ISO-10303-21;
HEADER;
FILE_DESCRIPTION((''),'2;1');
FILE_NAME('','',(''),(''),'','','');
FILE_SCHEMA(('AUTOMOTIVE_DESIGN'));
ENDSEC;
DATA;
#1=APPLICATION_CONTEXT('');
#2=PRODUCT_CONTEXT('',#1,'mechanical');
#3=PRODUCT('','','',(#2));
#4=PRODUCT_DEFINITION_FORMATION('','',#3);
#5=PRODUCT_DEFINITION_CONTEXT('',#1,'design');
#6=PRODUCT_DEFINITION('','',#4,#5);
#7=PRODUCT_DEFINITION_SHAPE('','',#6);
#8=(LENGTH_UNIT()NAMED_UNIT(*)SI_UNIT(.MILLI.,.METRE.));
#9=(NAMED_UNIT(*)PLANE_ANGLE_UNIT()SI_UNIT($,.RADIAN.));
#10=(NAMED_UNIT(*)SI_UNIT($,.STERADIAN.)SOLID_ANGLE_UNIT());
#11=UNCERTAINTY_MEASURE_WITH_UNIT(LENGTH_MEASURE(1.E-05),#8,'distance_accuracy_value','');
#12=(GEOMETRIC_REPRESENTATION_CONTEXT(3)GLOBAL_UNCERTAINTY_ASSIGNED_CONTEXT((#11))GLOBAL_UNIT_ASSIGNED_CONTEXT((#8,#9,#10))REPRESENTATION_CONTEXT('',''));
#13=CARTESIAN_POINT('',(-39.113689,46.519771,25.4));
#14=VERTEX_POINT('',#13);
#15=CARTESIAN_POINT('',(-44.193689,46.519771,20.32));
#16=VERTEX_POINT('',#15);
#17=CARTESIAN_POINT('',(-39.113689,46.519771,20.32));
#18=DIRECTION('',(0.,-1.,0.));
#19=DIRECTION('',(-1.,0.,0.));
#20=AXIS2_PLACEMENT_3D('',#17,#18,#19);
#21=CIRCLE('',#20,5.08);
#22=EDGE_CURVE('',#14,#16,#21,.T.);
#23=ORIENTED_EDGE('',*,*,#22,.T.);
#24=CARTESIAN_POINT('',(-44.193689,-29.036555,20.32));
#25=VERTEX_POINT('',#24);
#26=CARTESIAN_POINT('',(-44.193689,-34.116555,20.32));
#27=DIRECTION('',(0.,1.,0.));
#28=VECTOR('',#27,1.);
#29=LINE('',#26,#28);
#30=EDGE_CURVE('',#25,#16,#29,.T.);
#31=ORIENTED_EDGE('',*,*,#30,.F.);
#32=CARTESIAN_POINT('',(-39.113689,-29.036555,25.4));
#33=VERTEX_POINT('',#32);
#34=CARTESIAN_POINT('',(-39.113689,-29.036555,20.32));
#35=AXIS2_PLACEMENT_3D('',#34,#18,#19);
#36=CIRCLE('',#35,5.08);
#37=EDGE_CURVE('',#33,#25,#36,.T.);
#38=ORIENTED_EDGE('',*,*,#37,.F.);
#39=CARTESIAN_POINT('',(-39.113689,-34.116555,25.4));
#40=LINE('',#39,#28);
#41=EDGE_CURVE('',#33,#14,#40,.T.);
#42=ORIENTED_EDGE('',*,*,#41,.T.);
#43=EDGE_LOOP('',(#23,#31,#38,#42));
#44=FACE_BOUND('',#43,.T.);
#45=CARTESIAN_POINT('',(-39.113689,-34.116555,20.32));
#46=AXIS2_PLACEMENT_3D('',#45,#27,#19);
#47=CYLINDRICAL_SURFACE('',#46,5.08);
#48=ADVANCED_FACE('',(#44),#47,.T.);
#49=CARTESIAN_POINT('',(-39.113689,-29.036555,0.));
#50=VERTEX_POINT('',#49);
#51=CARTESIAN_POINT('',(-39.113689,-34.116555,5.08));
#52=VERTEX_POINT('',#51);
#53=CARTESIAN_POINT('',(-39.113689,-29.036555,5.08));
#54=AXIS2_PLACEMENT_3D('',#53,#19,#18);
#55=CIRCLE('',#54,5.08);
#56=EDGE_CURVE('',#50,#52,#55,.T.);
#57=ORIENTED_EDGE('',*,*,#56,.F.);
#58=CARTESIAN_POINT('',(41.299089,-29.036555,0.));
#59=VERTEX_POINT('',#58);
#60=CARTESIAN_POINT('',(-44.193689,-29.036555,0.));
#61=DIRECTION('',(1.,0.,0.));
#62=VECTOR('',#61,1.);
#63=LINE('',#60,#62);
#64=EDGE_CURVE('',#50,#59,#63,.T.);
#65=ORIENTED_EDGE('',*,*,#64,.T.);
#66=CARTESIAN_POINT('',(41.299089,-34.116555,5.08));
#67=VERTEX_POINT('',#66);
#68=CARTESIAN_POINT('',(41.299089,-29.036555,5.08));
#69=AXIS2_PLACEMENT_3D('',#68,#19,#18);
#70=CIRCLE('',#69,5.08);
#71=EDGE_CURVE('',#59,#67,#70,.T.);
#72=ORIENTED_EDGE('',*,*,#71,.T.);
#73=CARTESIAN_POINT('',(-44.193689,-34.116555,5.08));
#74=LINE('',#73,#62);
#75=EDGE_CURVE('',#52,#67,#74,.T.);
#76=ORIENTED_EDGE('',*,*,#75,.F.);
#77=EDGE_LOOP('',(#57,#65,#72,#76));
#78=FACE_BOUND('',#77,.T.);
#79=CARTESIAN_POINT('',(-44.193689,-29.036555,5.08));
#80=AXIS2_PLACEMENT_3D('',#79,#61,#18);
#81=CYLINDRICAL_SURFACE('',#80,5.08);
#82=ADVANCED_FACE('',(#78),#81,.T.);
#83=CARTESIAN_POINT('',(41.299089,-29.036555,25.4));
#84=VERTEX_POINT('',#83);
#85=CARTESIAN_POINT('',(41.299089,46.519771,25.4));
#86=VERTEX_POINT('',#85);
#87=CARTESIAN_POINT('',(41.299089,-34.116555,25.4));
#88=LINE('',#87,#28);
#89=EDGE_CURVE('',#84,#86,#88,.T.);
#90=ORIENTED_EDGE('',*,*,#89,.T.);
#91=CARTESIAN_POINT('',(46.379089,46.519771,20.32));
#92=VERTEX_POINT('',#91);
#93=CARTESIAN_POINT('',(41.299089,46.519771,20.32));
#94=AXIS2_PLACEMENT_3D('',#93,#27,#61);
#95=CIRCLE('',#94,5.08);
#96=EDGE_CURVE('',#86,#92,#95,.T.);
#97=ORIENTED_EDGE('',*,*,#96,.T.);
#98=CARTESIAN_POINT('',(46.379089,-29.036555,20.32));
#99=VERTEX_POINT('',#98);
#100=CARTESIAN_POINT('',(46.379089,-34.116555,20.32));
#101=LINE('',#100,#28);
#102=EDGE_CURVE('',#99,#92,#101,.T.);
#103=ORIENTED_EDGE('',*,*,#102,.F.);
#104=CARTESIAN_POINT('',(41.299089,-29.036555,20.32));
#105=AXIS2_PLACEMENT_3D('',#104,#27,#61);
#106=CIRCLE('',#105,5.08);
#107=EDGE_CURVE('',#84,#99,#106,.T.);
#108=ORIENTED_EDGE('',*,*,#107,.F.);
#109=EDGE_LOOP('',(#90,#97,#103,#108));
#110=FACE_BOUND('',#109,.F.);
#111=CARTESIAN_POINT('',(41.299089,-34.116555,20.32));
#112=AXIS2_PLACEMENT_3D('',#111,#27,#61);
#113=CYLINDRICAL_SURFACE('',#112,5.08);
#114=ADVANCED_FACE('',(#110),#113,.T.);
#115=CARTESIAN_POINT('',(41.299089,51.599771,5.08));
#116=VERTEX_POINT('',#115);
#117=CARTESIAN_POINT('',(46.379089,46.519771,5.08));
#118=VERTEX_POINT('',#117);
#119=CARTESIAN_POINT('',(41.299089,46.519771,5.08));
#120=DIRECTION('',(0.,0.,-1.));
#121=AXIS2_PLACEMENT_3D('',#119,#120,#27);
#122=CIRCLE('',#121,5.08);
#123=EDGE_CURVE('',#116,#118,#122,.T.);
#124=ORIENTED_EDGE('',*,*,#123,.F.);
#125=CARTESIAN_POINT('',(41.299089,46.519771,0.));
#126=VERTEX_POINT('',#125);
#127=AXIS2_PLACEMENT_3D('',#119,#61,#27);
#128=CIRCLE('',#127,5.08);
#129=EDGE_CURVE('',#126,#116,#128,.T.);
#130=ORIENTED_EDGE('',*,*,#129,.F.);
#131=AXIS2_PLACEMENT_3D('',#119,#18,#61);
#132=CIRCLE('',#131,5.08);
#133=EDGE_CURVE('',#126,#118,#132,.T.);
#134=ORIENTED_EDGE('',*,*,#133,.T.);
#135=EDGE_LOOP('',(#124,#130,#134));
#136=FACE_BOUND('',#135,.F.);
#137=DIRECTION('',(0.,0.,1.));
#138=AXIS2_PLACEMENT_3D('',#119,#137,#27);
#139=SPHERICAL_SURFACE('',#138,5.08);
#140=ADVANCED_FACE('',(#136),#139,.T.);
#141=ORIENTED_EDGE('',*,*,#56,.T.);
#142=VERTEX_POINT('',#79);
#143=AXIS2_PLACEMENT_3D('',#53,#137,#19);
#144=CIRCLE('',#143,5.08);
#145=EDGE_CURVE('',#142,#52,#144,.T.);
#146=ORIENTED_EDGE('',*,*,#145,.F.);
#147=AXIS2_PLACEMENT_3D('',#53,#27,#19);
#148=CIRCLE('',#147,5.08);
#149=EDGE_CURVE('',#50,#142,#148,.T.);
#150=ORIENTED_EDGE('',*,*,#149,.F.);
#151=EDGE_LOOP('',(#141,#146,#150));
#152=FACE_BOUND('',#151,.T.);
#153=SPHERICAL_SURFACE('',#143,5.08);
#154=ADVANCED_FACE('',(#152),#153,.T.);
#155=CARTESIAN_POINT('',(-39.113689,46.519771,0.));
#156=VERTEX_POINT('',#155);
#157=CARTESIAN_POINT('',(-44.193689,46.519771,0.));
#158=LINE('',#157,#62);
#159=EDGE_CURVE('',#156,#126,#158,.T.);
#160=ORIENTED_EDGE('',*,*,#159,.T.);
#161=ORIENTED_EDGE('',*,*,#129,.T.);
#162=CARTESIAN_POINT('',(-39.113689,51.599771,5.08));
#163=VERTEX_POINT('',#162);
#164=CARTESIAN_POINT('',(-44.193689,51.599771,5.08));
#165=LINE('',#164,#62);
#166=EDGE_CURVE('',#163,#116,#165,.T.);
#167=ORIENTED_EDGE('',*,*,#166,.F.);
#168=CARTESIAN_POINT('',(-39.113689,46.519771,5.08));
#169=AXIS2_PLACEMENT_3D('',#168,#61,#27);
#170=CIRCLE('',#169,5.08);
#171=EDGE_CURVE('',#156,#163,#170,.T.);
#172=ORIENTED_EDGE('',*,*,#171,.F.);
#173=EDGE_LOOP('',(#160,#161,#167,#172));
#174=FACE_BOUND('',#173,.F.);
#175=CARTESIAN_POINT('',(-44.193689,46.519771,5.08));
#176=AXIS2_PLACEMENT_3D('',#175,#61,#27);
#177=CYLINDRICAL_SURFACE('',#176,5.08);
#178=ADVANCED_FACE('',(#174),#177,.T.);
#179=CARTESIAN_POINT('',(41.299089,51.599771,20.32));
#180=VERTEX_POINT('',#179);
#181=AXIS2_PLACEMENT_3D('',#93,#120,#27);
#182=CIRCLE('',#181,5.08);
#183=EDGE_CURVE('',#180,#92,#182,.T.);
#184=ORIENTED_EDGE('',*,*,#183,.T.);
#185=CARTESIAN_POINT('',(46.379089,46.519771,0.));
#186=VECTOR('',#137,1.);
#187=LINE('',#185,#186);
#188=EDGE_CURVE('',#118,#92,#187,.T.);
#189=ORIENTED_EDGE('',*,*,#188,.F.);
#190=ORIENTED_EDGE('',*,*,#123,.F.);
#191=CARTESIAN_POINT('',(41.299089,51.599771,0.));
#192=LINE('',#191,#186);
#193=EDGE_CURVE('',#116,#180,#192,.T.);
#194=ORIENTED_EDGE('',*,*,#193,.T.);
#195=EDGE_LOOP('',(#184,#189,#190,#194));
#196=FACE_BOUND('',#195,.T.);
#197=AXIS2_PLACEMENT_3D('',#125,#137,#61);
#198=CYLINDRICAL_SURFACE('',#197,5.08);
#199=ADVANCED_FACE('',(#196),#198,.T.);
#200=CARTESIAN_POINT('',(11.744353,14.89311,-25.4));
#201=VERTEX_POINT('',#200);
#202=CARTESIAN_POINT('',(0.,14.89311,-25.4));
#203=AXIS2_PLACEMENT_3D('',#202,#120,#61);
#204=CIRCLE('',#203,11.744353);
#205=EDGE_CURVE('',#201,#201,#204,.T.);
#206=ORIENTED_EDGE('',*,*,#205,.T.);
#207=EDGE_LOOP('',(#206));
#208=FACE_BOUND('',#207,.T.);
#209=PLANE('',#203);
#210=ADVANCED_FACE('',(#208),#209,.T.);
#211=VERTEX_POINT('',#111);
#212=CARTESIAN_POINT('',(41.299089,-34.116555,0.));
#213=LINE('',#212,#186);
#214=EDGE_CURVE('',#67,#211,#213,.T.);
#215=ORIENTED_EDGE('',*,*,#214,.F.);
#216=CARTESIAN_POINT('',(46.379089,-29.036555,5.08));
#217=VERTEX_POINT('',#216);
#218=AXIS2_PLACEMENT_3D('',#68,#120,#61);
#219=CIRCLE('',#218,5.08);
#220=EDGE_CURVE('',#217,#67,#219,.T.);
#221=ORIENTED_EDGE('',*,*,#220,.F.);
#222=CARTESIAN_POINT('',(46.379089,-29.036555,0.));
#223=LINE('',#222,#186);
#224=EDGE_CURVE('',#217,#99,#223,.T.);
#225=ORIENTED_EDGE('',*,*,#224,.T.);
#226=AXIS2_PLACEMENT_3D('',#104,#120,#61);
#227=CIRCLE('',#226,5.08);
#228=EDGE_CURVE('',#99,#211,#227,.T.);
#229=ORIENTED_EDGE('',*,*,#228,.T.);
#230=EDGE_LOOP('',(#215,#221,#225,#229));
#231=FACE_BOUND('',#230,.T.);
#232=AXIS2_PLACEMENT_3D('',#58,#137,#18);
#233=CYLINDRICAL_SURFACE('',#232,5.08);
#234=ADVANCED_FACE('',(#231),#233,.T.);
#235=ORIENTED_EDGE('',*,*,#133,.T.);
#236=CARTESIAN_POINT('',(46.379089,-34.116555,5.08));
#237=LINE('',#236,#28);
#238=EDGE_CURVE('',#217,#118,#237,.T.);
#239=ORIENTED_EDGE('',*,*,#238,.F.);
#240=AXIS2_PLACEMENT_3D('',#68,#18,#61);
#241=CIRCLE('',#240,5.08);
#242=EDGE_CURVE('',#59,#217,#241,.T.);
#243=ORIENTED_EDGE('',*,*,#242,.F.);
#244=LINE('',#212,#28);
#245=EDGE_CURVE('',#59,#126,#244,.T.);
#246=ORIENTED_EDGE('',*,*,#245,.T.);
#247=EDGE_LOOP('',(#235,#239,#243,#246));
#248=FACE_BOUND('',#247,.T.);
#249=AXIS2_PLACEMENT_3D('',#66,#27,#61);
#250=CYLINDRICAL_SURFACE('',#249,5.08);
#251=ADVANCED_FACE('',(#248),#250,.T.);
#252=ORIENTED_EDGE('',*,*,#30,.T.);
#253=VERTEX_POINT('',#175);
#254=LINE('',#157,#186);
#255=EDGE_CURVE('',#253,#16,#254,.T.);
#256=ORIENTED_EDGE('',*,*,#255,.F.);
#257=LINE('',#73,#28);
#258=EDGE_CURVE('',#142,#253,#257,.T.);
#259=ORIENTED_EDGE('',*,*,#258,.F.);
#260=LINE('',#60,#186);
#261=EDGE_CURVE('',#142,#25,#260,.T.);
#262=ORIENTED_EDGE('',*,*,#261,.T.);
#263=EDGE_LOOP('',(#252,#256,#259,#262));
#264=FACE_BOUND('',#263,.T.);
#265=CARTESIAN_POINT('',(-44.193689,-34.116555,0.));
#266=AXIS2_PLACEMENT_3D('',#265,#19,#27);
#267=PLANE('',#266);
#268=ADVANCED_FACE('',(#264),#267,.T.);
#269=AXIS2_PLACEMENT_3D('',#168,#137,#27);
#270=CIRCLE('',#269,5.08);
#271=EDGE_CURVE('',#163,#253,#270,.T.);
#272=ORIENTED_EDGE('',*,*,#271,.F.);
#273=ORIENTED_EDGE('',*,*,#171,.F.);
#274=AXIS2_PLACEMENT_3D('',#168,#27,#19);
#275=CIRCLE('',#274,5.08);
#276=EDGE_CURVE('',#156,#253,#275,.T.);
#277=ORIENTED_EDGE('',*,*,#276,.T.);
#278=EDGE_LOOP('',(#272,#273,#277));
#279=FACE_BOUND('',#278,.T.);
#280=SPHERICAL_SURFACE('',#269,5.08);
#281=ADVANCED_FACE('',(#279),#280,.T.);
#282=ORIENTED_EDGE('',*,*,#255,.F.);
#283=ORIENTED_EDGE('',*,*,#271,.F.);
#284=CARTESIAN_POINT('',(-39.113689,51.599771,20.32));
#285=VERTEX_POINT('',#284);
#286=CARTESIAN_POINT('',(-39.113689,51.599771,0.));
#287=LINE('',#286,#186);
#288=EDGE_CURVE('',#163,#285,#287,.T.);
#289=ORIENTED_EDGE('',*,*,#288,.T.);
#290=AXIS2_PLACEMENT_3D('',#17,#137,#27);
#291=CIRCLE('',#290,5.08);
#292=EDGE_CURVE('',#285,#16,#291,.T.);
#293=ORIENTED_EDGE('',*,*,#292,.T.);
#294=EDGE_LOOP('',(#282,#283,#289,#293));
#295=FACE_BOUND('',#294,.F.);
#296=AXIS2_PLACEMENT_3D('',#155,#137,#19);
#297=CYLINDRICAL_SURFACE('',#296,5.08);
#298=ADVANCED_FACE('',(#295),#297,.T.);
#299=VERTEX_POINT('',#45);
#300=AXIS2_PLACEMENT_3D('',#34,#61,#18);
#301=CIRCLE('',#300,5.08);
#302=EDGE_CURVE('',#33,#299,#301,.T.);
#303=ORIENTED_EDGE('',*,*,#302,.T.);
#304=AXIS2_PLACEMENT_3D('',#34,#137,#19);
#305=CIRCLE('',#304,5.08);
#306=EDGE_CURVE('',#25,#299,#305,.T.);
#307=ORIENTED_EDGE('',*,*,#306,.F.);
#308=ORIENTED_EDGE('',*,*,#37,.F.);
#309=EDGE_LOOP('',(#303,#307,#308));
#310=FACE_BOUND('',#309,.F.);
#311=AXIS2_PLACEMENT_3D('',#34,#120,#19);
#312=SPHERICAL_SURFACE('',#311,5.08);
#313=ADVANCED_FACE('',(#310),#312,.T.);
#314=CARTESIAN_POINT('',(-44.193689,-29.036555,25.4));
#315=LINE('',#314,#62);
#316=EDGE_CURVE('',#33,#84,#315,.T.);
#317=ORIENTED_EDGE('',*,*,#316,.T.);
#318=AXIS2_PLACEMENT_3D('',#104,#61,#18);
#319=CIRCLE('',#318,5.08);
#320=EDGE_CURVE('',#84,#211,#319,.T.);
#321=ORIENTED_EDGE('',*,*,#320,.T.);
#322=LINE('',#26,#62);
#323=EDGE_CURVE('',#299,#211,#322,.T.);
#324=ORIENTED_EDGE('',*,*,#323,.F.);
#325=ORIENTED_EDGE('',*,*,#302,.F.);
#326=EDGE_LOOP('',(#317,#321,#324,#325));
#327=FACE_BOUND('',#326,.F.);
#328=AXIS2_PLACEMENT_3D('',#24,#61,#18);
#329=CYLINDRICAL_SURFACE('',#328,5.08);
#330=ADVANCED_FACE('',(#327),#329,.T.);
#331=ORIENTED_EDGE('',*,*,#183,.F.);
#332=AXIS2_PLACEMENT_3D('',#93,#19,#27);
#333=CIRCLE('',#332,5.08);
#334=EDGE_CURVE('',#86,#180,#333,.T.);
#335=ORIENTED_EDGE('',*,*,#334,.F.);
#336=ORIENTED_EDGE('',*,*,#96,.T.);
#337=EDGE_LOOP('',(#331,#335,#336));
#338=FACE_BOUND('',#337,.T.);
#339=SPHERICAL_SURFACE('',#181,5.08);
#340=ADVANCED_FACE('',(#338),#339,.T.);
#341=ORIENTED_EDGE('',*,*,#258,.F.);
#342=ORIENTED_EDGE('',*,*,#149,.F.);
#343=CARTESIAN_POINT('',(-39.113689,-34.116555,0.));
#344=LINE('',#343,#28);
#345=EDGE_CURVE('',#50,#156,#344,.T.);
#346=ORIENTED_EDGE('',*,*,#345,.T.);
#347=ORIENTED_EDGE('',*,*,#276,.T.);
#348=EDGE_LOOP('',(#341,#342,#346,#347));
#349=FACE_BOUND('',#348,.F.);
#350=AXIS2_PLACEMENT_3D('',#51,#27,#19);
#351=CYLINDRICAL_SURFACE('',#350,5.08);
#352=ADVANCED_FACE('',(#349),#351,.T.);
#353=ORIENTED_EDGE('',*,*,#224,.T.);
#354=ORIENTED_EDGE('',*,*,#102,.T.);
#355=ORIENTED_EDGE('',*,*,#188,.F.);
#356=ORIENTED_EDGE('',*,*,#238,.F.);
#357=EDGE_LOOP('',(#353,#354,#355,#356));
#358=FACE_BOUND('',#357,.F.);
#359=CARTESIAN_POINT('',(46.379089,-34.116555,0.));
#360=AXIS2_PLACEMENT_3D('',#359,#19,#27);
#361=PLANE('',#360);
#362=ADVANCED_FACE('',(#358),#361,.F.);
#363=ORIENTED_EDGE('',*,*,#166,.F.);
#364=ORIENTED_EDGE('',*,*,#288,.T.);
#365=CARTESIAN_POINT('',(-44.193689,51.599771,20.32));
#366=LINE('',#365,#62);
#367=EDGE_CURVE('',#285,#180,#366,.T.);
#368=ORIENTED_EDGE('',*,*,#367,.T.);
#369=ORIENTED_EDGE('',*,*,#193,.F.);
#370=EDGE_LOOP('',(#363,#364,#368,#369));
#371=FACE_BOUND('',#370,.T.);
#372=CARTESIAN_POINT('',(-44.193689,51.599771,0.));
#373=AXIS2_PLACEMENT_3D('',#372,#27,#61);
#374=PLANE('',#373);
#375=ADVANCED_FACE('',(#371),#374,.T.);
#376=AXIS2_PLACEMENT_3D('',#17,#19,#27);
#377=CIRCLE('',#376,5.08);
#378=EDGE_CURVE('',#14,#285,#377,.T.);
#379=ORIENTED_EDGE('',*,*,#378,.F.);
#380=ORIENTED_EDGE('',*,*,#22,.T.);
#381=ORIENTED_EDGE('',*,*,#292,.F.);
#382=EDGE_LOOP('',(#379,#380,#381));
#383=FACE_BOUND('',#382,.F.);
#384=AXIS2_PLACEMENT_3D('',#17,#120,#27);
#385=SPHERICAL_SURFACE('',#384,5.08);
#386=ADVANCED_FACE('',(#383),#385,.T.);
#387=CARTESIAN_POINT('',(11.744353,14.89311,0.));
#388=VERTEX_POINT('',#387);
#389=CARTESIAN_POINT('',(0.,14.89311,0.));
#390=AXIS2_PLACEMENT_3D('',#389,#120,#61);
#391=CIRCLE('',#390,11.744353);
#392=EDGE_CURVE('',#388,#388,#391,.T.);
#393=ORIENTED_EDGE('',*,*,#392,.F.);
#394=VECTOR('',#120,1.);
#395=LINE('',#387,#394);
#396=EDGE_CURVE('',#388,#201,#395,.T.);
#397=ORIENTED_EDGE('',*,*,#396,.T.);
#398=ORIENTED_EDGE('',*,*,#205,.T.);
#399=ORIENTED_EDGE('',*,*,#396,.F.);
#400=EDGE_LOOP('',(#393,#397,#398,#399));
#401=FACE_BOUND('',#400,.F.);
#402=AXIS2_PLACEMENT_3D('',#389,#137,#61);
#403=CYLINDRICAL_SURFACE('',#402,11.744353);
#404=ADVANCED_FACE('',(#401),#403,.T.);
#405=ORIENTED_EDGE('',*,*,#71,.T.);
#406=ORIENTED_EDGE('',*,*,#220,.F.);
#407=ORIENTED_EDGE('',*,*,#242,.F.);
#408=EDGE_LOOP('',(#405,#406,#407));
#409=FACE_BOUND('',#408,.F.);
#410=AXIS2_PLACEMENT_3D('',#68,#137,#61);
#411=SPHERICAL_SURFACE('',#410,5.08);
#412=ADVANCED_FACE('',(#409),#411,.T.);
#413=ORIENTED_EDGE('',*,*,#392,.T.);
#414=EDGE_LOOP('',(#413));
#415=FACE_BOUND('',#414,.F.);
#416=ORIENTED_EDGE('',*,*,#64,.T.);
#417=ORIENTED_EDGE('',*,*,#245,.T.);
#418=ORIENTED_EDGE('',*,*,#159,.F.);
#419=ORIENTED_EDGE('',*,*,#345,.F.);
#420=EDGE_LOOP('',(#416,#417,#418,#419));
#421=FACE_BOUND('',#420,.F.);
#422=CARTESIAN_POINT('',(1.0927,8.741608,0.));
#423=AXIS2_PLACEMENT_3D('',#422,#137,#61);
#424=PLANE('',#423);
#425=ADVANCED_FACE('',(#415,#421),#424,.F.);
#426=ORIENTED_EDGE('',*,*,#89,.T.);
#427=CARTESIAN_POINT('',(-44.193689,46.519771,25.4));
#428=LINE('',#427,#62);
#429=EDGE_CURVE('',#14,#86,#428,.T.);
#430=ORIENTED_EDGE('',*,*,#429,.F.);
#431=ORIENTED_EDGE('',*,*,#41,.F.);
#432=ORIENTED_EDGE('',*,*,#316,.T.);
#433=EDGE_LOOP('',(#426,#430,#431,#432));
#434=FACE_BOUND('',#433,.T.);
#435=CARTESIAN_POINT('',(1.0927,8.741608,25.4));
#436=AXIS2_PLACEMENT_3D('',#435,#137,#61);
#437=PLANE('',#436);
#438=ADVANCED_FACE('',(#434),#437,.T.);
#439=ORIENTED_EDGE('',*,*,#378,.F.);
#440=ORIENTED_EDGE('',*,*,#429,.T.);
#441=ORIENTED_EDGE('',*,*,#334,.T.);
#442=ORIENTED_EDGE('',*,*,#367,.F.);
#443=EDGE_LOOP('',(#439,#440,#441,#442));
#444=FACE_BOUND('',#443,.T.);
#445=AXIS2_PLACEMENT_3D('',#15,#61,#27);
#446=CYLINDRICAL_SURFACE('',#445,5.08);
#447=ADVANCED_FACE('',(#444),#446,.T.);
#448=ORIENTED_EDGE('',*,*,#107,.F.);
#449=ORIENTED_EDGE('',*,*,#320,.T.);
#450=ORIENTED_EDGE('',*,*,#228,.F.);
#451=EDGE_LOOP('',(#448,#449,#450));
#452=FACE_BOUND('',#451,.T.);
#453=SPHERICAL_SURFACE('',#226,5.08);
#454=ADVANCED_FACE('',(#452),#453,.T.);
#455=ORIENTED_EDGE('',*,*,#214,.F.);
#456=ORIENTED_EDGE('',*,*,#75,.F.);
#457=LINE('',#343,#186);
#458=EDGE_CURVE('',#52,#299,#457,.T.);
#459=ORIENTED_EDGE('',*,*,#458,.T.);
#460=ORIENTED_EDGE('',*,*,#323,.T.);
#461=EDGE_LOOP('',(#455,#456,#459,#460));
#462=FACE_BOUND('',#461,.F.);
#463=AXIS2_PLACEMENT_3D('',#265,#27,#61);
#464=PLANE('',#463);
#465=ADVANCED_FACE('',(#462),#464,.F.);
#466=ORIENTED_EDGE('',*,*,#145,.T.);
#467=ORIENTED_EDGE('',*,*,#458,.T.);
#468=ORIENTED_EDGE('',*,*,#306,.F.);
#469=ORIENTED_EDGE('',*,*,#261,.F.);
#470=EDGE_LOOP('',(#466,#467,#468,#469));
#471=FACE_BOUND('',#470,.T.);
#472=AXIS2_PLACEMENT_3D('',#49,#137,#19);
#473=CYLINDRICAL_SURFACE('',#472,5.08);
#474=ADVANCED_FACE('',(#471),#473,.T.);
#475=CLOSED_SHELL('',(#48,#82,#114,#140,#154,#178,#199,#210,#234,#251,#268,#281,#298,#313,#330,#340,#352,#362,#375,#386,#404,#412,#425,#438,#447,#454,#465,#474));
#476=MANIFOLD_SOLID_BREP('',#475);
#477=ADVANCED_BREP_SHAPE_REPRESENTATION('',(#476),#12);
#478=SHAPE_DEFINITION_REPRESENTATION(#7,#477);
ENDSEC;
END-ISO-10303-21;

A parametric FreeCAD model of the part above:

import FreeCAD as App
import Part
import Sketcher
Q = App.Units.Quantity

doc = App.newDocument("Part")
body = doc.addObject("PartDesign::Body", "Body")

sketch1 = body.newObject("Sketcher::SketchObject", "Sketch")
sketch1.AttachmentSupport = (doc.getObject("XY_Plane"), [""])
sketch1.MapMode = "FlatFace"
sketch1.addGeometry([
    Part.LineSegment(App.Vector(-44, 52, 0), App.Vector(-44, -34, 0)),
    Part.LineSegment(App.Vector(-44, -34, 0), App.Vector(46, -34, 0)),
    Part.LineSegment(App.Vector(46, -34, 0), App.Vector(46, 52, 0)),
    Part.LineSegment(App.Vector(46, 52, 0), App.Vector(-44, 52, 0)),
], False)
sketch1.addConstraint([
    Sketcher.Constraint("Coincident", 0, 2, 1, 1),
    Sketcher.Constraint("Coincident", 1, 2, 2, 1),
    Sketcher.Constraint("Coincident", 2, 2, 3, 1),
    Sketcher.Constraint("Coincident", 3, 2, 0, 1),
    Sketcher.Constraint("Vertical", 0),
    Sketcher.Constraint("Horizontal", 1),
    Sketcher.Constraint("Vertical", 2),
    Sketcher.Constraint("Horizontal", 3),
    Sketcher.Constraint("DistanceX", 1, 1, 1, 2, 90.572778),
    Sketcher.Constraint("DistanceY", 0, 2, 0, 1, 85.716326),
    Sketcher.Constraint("DistanceX", 0, 2, -1, 1, 44.193689),
    Sketcher.Constraint("DistanceY", -1, 1, 2, 2, 51.599771),
])
pad1 = body.newObject("PartDesign::Pad", "Pad")
pad1.Profile = sketch1
pad1.Length = Q("1 in")
doc.recompute()

fillet = body.newObject("PartDesign::Fillet", "Fillet")
fillet.Base = (pad1, ["Edge1"])
fillet.UseAllEdges = True
fillet.Radius = Q("0.2 in")

sketch2 = body.newObject("Sketcher::SketchObject", "Sketch001")
sketch2.AttachmentSupport = (doc.getObject("XY_Plane"), [""])
sketch2.MapMode = "FlatFace"
sketch2.addGeometry(Part.Circle(App.Vector(0, 15, 0), App.Vector(0, 0, 1), 12), False)
sketch2.addConstraint([
    Sketcher.Constraint("PointOnObject", 0, 3, -2),
    Sketcher.Constraint("Diameter", 0, 23.488706),
    Sketcher.Constraint("DistanceY", -1, 1, 0, 3, 14.89311),
])
pad2 = body.newObject("PartDesign::Pad", "Pad001")
pad2.Profile = sketch2
pad2.Length = Q("1 in")
pad2.Reversed = True

doc.recompute()
